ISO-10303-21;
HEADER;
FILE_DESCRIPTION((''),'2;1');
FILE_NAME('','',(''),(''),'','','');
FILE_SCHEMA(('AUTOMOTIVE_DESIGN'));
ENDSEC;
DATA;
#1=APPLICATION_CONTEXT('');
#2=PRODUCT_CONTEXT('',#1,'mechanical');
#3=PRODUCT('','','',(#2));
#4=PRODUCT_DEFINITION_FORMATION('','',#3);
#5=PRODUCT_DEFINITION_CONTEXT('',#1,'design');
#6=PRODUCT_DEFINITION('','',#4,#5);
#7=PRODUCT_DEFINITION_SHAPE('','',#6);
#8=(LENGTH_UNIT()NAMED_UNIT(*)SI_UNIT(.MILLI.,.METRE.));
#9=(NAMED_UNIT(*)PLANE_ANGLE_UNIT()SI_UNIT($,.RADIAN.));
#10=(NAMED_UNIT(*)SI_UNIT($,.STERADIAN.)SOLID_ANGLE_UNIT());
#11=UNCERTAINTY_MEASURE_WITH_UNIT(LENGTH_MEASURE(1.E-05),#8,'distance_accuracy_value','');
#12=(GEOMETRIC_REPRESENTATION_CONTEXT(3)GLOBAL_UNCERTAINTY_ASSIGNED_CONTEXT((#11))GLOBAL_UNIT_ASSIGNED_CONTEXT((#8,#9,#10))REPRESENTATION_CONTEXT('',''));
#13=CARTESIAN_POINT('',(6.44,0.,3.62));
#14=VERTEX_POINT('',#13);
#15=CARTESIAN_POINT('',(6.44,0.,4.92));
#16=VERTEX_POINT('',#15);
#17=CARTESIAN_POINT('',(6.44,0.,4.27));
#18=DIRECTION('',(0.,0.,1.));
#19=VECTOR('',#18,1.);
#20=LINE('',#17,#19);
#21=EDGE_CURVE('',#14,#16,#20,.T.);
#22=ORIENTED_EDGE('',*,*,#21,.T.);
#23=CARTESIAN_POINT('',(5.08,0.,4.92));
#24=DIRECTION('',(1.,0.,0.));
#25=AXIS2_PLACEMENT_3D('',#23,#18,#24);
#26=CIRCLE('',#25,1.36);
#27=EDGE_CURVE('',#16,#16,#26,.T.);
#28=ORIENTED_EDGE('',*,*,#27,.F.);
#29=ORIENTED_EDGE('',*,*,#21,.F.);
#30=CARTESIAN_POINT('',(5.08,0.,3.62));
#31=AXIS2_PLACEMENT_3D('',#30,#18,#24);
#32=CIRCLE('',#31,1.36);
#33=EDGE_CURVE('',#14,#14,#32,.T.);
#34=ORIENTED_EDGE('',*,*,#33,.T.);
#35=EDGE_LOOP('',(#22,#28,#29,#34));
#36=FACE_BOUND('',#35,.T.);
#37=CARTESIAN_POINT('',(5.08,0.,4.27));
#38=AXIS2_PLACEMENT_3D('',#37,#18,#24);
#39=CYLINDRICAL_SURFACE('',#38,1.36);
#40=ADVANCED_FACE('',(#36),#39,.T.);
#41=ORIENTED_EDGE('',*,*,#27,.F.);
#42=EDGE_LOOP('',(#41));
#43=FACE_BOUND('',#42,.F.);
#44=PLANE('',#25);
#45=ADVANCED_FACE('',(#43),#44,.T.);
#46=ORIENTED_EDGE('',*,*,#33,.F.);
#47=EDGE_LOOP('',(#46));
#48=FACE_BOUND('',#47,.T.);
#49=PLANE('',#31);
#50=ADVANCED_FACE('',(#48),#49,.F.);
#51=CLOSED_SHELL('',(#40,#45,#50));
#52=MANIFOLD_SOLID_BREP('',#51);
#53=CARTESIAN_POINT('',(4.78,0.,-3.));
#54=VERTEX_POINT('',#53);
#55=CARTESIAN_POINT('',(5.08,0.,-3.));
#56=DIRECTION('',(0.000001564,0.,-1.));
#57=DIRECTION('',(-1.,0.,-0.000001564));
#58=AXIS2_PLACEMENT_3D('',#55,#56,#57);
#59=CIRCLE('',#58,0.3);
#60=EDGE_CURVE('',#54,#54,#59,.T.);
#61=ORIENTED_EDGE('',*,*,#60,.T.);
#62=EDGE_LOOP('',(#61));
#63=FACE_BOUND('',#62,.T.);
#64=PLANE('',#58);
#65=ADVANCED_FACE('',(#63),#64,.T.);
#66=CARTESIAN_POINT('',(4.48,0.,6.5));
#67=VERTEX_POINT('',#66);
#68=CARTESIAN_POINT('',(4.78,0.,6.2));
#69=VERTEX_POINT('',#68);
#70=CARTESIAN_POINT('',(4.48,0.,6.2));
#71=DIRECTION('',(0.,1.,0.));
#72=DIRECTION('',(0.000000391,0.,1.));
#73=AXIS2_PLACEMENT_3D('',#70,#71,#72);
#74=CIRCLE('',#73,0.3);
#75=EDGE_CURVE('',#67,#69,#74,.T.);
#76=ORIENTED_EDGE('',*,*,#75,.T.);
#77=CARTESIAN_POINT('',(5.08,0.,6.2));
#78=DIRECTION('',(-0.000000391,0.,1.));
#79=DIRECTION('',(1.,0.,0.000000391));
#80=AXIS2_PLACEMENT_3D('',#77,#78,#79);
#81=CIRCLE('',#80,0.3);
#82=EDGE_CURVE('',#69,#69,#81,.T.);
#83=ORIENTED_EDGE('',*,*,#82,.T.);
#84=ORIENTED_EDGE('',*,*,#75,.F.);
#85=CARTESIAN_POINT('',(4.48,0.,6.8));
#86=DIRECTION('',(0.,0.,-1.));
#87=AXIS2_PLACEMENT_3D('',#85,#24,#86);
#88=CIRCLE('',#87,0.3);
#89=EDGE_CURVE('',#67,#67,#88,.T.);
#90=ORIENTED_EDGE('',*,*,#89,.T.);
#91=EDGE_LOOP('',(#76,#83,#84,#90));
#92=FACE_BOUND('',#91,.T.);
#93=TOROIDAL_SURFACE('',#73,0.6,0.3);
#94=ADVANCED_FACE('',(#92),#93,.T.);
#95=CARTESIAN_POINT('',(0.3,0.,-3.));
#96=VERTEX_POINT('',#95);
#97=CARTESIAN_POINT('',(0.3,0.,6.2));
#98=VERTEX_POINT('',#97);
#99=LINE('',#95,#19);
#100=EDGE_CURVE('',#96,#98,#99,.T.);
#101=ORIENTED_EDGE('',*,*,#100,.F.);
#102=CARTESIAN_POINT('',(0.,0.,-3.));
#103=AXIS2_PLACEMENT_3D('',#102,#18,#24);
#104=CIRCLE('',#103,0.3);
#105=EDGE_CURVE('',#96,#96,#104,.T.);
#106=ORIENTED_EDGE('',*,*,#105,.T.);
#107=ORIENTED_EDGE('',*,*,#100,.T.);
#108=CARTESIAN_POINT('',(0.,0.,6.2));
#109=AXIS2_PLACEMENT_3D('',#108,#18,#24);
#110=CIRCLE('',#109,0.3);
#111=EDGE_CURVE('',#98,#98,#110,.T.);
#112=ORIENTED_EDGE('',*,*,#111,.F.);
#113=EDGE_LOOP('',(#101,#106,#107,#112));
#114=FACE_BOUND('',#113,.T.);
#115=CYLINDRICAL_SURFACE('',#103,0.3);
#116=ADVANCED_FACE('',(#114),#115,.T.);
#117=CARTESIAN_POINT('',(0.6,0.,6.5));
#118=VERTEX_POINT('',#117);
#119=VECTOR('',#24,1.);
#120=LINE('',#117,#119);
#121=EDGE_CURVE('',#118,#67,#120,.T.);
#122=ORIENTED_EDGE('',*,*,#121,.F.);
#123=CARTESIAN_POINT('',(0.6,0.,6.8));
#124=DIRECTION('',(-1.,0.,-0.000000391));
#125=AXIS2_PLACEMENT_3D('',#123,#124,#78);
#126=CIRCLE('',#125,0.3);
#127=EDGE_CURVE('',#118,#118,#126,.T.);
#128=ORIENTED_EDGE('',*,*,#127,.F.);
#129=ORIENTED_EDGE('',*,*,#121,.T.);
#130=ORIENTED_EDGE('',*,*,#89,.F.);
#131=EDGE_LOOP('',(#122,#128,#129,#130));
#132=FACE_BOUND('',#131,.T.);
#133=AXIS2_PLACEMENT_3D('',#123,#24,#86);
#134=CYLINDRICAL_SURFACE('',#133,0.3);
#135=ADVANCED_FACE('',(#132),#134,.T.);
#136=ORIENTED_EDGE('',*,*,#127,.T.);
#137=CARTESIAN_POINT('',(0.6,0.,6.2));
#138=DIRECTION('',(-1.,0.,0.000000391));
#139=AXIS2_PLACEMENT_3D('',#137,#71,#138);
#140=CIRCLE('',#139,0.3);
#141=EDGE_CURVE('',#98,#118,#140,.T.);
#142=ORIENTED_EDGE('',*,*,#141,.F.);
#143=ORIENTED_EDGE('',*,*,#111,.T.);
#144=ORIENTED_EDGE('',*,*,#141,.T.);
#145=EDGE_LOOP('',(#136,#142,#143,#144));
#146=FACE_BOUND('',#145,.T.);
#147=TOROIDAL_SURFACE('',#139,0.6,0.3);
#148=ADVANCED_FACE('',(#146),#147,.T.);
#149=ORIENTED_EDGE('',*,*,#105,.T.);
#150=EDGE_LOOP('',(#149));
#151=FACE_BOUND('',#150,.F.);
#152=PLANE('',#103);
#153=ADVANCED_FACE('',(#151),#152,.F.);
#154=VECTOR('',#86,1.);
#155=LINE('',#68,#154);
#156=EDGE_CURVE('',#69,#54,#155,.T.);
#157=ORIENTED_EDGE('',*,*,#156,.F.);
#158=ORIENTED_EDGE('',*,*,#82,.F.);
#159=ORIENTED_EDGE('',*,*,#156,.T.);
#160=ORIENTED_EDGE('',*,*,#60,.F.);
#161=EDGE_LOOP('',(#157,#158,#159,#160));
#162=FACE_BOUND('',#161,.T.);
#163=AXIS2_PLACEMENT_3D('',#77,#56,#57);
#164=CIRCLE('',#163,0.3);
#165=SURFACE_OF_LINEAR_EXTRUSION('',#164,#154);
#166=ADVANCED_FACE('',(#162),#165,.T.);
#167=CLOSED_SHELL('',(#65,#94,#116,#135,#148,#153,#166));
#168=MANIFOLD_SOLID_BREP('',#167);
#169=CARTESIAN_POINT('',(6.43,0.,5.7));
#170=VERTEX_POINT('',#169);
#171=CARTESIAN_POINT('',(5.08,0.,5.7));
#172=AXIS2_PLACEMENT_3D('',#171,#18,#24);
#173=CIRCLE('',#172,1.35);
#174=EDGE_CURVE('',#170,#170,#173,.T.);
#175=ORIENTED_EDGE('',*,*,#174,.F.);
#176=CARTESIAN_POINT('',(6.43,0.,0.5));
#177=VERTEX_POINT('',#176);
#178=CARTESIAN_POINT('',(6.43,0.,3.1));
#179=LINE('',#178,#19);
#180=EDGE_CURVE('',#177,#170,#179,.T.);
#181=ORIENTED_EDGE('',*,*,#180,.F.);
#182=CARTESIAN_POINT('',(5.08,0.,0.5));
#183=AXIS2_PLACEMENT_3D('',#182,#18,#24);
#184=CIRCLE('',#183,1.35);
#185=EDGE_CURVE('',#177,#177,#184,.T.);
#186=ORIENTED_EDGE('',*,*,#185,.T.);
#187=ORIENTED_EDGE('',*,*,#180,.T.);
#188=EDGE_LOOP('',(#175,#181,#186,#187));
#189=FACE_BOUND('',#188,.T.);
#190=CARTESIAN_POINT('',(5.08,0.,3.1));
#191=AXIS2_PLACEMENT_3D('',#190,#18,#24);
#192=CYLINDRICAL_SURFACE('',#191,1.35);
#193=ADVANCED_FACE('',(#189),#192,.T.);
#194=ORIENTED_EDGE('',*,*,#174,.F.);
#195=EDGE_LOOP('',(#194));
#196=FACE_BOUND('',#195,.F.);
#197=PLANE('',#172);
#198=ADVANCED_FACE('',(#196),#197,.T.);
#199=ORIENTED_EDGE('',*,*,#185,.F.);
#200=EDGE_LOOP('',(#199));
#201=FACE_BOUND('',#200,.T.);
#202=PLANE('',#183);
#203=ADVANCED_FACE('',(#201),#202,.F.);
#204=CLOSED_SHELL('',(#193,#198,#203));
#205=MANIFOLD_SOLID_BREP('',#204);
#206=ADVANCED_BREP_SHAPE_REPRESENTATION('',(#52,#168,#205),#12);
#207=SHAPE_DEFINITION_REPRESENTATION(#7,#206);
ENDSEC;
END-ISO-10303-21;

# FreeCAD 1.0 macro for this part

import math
import FreeCAD as App
import Part
import Sketcher
from FreeCAD import Vector
Q = App.Units.Quantity


def add_polygon(sketch, points):
    """Adds a closed chain of lines whose ends are joined by coincident constraints."""
    first, n = sketch.GeometryCount, len(points)
    for a, b in zip(points, points[1:] + points[:1]):
        sketch.addGeometry(Part.LineSegment(App.Vector(*a, 0), App.Vector(*b, 0)), False)
    for i in range(n):
        sketch.addConstraint(Sketcher.Constraint("Coincident", first + i, 2, first + (i + 1) % n, 1))

doc = App.newDocument("Part")
params = doc.addObject("Spreadsheet::Sheet", "Params")
for row, (alias, value) in enumerate([
    ("sketch1_diameter", "0.6 mm"),
    ("sketch2_radius", "0.6 mm"),
    ("sketch2_height", "9.2 mm"),
    ("sketch2_width", "3.88 mm"),
    ("sketch3_height", "5.2 mm"),
    ("sketch3_width", "1.35 mm"),
    ("revolution_angle", "360 deg"),
    ("sketch4_height", "1.3 mm"),
    ("sketch4_width", "1.36 mm"),
    ("revolution2_angle", "360 deg"),
], start=1):
    params.set(f"A{row}", alias)
    params.set(f"B{row}", "=" + value)
    params.setAlias(f"B{row}", alias)

body = doc.addObject("PartDesign::Body", "Body")

# Sketch on XY plane
sketch1 = body.newObject("Sketcher::SketchObject", "Sketch")
sketch1.AttachmentSupport = (doc.getObject("XY_Plane"), [""])
sketch1.MapMode = "FlatFace"
sketch1.addGeometry(Part.Circle(Vector(0, 0, 0), Vector(0, 0, 1), 0.3), False)
sketch1.addConstraint(Sketcher.Constraint("Coincident", 0, 3, -1, 1))
sketch1.addConstraint(Sketcher.Constraint("Diameter", 0, Q("0.6 mm")))
sketch1.setExpression("Constraints[1]", "Params.sketch1_diameter")

# Sketch on XZ plane
sketch2 = body.newObject("Sketcher::SketchObject", "Sketch001")
sketch2.AttachmentSupport = (doc.getObject("XZ_Plane"), [""])
sketch2.MapMode = "FlatFace"
sketch2.addGeometry(Part.LineSegment(Vector(0, -3, 0), Vector(0, 6.2, 0)), False)
sketch2.addGeometry(Part.ArcOfCircle(Part.Circle(Vector(0.6, 6.2, 0), Vector(0, 0, 1), 0.6), math.radians(90), math.radians(180)), False)
sketch2.addGeometry(Part.LineSegment(Vector(0.6, 6.8, 0), Vector(4.5, 6.8, 0)), False)
sketch2.addGeometry(Part.ArcOfCircle(Part.Circle(Vector(4.5, 6.2, 0), Vector(0, 0, 1), 0.6), math.radians(0), math.radians(90)), False)
sketch2.addGeometry(Part.LineSegment(Vector(5.1, 6.2, 0), Vector(5.1, -3, 0)), False)
sketch2.addConstraint(Sketcher.Constraint("Tangent", 0, 2, 1, 2))
sketch2.addConstraint(Sketcher.Constraint("Tangent", 1, 1, 2, 1))
sketch2.addConstraint(Sketcher.Constraint("Tangent", 2, 2, 3, 2))
sketch2.addConstraint(Sketcher.Constraint("Tangent", 3, 1, 4, 1))
sketch2.addConstraint(Sketcher.Constraint("Vertical", 0))
sketch2.addConstraint(Sketcher.Constraint("Horizontal", 2))
sketch2.addConstraint(Sketcher.Constraint("Vertical", 4))
sketch2.addConstraint(Sketcher.Constraint("Equal", 1, 3))
sketch2.addConstraint(Sketcher.Constraint("PointOnObject", 0, 1, -2))
sketch2.addConstraint(Sketcher.Constraint("Horizontal", 0, 1, 4, 2))
sketch2.addConstraint(Sketcher.Constraint("Radius", 1, Q("0.6 mm")))
sketch2.addConstraint(Sketcher.Constraint("DistanceY", 0, 1, 0, 2, Q("9.2 mm")))
sketch2.addConstraint(Sketcher.Constraint("DistanceY", 0, 1, -1, 1, Q("3 mm")))
sketch2.addConstraint(Sketcher.Constraint("DistanceX", 2, 1, 2, 2, Q("3.88 mm")))
sketch2.setExpression("Constraints[10]", "Params.sketch2_radius")
sketch2.setExpression("Constraints[11]", "Params.sketch2_height")
sketch2.setExpression("Constraints[13]", "Params.sketch2_width")
doc.recompute()

additivepipe = body.newObject("PartDesign::AdditivePipe", "AdditivePipe")
additivepipe.Profile = sketch1
additivepipe.Spine = (sketch2, ["Edge1", "Edge2", "Edge3", "Edge4", "Edge5"])
body2 = doc.addObject("PartDesign::Body", "Body001")

# Sketch on XZ plane
sketch3 = body2.newObject("Sketcher::SketchObject", "Sketch002")
sketch3.AttachmentSupport = (doc.getObject("XZ_Plane001"), [""])
sketch3.MapMode = "FlatFace"
add_polygon(sketch3, [(5.1, 5.7), (5.1, 0.5), (6.4, 0.5), (6.4, 5.7)])  # lines 0-3
sketch3.addGeometry(Part.LineSegment(Vector(5.1, 0.5, 0), Vector(5.1, 5.7, 0)), True)  # axis
sketch3.addConstraint(Sketcher.Constraint("Vertical", 0))
sketch3.addConstraint(Sketcher.Constraint("Horizontal", 1))
sketch3.addConstraint(Sketcher.Constraint("Vertical", 2))
sketch3.addConstraint(Sketcher.Constraint("Horizontal", 3))
sketch3.addConstraint(Sketcher.Constraint("Vertical", 4))
sketch3.addConstraint(Sketcher.Constraint("Coincident", 4, 1, 0, 2))
sketch3.addConstraint(Sketcher.Constraint("Horizontal", 2, 2, 4, 2))
sketch3.addConstraint(Sketcher.Constraint("DistanceY", 0, 2, 0, 1, Q("5.2 mm")))
sketch3.addConstraint(Sketcher.Constraint("DistanceX", 1, 1, 1, 2, Q("1.35 mm")))
sketch3.addConstraint(Sketcher.Constraint("DistanceY", -1, 1, 0, 2, Q("0.5 mm")))
sketch3.addConstraint(Sketcher.Constraint("DistanceX", -1, 1, 0, 2, Q("5.08 mm")))
sketch3.setExpression("Constraints[11]", "Params.sketch3_height")
sketch3.setExpression("Constraints[12]", "Params.sketch3_width")
revolution = body2.newObject("PartDesign::Revolution", "Revolution")
revolution.Profile = sketch3
revolution.ReferenceAxis = (sketch3, ["Axis0"])
revolution.setExpression("Angle", "Params.revolution_angle")
body3 = doc.addObject("PartDesign::Body", "Body002")

# Sketch on XZ plane
sketch4 = body3.newObject("Sketcher::SketchObject", "Sketch003")
sketch4.AttachmentSupport = (doc.getObject("XZ_Plane002"), [""])
sketch4.MapMode = "FlatFace"
add_polygon(sketch4, [(5.1, 4.9), (5.1, 3.6), (6.4, 3.6), (6.4, 4.9)])  # lines 0-3
sketch4.addGeometry(Part.LineSegment(Vector(5.1, 3.6, 0), Vector(5.1, 4.9, 0)), True)  # axis
sketch4.addConstraint(Sketcher.Constraint("Vertical", 0))
sketch4.addConstraint(Sketcher.Constraint("Horizontal", 1))
sketch4.addConstraint(Sketcher.Constraint("Vertical", 2))
sketch4.addConstraint(Sketcher.Constraint("Horizontal", 3))
sketch4.addConstraint(Sketcher.Constraint("Vertical", 4))
sketch4.addConstraint(Sketcher.Constraint("Coincident", 4, 1, 0, 2))
sketch4.addConstraint(Sketcher.Constraint("Horizontal", 2, 2, 4, 2))
sketch4.addConstraint(Sketcher.Constraint("DistanceY", 0, 2, 0, 1, Q("1.3 mm")))
sketch4.addConstraint(Sketcher.Constraint("DistanceX", 1, 1, 1, 2, Q("1.36 mm")))
sketch4.addConstraint(Sketcher.Constraint("DistanceX", -1, 1, 0, 2, Q("5.08 mm")))
sketch4.addConstraint(Sketcher.Constraint("DistanceY", -1, 1, 0, 2, Q("3.62 mm")))
sketch4.setExpression("Constraints[11]", "Params.sketch4_height")
sketch4.setExpression("Constraints[12]", "Params.sketch4_width")
revolution2 = body3.newObject("PartDesign::Revolution", "Revolution001")
revolution2.Profile = sketch4
revolution2.ReferenceAxis = (sketch4, ["Axis0"])
revolution2.setExpression("Angle", "Params.revolution2_angle")

doc.recompute()
